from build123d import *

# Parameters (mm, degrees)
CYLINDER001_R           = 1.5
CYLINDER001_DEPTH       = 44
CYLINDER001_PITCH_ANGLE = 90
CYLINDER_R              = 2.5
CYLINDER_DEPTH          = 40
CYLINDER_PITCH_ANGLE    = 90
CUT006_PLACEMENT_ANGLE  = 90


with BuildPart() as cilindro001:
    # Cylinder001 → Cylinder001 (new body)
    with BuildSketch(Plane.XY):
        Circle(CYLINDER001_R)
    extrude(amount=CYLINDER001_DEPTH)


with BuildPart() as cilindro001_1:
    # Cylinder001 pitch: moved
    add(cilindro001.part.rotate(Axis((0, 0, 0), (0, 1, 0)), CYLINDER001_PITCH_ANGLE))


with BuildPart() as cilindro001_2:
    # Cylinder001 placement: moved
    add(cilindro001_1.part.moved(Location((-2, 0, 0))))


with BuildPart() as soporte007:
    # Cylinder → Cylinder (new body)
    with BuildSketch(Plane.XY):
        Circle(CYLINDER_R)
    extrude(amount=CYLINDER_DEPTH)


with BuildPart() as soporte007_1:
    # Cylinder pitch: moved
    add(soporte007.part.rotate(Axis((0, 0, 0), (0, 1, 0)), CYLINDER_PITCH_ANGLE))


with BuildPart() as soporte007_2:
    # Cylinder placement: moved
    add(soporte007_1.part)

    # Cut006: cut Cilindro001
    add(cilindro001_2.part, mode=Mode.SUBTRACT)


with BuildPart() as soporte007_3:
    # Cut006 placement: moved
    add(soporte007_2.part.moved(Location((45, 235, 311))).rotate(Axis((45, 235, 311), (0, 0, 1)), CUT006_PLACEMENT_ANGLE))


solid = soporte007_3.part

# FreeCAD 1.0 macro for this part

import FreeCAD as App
import Part
import Sketcher

doc = App.newDocument("Part")
body = doc.addObject("PartDesign::Body", "Body")

sketch1 = body.newObject("Sketcher::SketchObject", "Sketch")
sketch1.AttachmentSupport = (doc.getObject("XY_Plane"), [""])
sketch1.MapMode = "FlatFace"
sketch1.addGeometry(Part.Circle(App.Vector(0, 0, 0), App.Vector(0, 0, 1), 1.5), False)
sketch1.addConstraint([
    Sketcher.Constraint("Coincident", 0, 3, -1, 1),
    Sketcher.Constraint("Diameter", 0, 3.0),
])
pad1 = body.newObject("PartDesign::Pad", "Pad")
pad1.Profile = sketch1
pad1.Length = 44
body2 = doc.addObject("PartDesign::Body", "Body001")
doc.recompute()

body.Placement = App.Placement(App.Vector(0, 0, 0), App.Rotation(App.Vector(0, 1, 0), 90))
boolean = body2.newObject("PartDesign::Boolean", "Boolean")
boolean.Type = "Fuse"
boolean.addObjects([body])
body3 = doc.addObject("PartDesign::Body", "Body002")
doc.recompute()

body2.Placement = App.Placement(App.Vector(-2, 0, 0), App.Rotation(App.Vector(0, 0, 1), 0))
boolean2 = body3.newObject("PartDesign::Boolean", "Boolean001")
boolean2.Type = "Fuse"
boolean2.addObjects([body2])
body4 = doc.addObject("PartDesign::Body", "Body003")

sketch2 = body4.newObject("Sketcher::SketchObject", "Sketch001")
sketch2.AttachmentSupport = (doc.getObject("XY_Plane003"), [""])
sketch2.MapMode = "FlatFace"
sketch2.addGeometry(Part.Circle(App.Vector(0, 0, 0), App.Vector(0, 0, 1), 2.5), False)
sketch2.addConstraint([
    Sketcher.Constraint("Coincident", 0, 3, -1, 1),
    Sketcher.Constraint("Diameter", 0, 5.0),
])
pad2 = body4.newObject("PartDesign::Pad", "Pad001")
pad2.Profile = sketch2
pad2.Length = 40
body5 = doc.addObject("PartDesign::Body", "Body004")
doc.recompute()

body4.Placement = App.Placement(App.Vector(0, 0, 0), App.Rotation(App.Vector(0, 1, 0), 90))
boolean3 = body5.newObject("PartDesign::Boolean", "Boolean002")
boolean3.Type = "Fuse"
boolean3.addObjects([body4])
doc.recompute()

boolean4 = body5.newObject("PartDesign::Boolean", "Boolean003")
boolean4.Type = "Cut"
boolean4.addObjects([body3])
body6 = doc.addObject("PartDesign::Body", "Body005")
doc.recompute()

body5.Placement = App.Placement(App.Vector(45, 235, 311), App.Rotation(App.Vector(0, 0, 1), 90))
boolean5 = body6.newObject("PartDesign::Boolean", "Boolean004")
boolean5.Type = "Fuse"
boolean5.addObjects([body5])

doc.recompute()
